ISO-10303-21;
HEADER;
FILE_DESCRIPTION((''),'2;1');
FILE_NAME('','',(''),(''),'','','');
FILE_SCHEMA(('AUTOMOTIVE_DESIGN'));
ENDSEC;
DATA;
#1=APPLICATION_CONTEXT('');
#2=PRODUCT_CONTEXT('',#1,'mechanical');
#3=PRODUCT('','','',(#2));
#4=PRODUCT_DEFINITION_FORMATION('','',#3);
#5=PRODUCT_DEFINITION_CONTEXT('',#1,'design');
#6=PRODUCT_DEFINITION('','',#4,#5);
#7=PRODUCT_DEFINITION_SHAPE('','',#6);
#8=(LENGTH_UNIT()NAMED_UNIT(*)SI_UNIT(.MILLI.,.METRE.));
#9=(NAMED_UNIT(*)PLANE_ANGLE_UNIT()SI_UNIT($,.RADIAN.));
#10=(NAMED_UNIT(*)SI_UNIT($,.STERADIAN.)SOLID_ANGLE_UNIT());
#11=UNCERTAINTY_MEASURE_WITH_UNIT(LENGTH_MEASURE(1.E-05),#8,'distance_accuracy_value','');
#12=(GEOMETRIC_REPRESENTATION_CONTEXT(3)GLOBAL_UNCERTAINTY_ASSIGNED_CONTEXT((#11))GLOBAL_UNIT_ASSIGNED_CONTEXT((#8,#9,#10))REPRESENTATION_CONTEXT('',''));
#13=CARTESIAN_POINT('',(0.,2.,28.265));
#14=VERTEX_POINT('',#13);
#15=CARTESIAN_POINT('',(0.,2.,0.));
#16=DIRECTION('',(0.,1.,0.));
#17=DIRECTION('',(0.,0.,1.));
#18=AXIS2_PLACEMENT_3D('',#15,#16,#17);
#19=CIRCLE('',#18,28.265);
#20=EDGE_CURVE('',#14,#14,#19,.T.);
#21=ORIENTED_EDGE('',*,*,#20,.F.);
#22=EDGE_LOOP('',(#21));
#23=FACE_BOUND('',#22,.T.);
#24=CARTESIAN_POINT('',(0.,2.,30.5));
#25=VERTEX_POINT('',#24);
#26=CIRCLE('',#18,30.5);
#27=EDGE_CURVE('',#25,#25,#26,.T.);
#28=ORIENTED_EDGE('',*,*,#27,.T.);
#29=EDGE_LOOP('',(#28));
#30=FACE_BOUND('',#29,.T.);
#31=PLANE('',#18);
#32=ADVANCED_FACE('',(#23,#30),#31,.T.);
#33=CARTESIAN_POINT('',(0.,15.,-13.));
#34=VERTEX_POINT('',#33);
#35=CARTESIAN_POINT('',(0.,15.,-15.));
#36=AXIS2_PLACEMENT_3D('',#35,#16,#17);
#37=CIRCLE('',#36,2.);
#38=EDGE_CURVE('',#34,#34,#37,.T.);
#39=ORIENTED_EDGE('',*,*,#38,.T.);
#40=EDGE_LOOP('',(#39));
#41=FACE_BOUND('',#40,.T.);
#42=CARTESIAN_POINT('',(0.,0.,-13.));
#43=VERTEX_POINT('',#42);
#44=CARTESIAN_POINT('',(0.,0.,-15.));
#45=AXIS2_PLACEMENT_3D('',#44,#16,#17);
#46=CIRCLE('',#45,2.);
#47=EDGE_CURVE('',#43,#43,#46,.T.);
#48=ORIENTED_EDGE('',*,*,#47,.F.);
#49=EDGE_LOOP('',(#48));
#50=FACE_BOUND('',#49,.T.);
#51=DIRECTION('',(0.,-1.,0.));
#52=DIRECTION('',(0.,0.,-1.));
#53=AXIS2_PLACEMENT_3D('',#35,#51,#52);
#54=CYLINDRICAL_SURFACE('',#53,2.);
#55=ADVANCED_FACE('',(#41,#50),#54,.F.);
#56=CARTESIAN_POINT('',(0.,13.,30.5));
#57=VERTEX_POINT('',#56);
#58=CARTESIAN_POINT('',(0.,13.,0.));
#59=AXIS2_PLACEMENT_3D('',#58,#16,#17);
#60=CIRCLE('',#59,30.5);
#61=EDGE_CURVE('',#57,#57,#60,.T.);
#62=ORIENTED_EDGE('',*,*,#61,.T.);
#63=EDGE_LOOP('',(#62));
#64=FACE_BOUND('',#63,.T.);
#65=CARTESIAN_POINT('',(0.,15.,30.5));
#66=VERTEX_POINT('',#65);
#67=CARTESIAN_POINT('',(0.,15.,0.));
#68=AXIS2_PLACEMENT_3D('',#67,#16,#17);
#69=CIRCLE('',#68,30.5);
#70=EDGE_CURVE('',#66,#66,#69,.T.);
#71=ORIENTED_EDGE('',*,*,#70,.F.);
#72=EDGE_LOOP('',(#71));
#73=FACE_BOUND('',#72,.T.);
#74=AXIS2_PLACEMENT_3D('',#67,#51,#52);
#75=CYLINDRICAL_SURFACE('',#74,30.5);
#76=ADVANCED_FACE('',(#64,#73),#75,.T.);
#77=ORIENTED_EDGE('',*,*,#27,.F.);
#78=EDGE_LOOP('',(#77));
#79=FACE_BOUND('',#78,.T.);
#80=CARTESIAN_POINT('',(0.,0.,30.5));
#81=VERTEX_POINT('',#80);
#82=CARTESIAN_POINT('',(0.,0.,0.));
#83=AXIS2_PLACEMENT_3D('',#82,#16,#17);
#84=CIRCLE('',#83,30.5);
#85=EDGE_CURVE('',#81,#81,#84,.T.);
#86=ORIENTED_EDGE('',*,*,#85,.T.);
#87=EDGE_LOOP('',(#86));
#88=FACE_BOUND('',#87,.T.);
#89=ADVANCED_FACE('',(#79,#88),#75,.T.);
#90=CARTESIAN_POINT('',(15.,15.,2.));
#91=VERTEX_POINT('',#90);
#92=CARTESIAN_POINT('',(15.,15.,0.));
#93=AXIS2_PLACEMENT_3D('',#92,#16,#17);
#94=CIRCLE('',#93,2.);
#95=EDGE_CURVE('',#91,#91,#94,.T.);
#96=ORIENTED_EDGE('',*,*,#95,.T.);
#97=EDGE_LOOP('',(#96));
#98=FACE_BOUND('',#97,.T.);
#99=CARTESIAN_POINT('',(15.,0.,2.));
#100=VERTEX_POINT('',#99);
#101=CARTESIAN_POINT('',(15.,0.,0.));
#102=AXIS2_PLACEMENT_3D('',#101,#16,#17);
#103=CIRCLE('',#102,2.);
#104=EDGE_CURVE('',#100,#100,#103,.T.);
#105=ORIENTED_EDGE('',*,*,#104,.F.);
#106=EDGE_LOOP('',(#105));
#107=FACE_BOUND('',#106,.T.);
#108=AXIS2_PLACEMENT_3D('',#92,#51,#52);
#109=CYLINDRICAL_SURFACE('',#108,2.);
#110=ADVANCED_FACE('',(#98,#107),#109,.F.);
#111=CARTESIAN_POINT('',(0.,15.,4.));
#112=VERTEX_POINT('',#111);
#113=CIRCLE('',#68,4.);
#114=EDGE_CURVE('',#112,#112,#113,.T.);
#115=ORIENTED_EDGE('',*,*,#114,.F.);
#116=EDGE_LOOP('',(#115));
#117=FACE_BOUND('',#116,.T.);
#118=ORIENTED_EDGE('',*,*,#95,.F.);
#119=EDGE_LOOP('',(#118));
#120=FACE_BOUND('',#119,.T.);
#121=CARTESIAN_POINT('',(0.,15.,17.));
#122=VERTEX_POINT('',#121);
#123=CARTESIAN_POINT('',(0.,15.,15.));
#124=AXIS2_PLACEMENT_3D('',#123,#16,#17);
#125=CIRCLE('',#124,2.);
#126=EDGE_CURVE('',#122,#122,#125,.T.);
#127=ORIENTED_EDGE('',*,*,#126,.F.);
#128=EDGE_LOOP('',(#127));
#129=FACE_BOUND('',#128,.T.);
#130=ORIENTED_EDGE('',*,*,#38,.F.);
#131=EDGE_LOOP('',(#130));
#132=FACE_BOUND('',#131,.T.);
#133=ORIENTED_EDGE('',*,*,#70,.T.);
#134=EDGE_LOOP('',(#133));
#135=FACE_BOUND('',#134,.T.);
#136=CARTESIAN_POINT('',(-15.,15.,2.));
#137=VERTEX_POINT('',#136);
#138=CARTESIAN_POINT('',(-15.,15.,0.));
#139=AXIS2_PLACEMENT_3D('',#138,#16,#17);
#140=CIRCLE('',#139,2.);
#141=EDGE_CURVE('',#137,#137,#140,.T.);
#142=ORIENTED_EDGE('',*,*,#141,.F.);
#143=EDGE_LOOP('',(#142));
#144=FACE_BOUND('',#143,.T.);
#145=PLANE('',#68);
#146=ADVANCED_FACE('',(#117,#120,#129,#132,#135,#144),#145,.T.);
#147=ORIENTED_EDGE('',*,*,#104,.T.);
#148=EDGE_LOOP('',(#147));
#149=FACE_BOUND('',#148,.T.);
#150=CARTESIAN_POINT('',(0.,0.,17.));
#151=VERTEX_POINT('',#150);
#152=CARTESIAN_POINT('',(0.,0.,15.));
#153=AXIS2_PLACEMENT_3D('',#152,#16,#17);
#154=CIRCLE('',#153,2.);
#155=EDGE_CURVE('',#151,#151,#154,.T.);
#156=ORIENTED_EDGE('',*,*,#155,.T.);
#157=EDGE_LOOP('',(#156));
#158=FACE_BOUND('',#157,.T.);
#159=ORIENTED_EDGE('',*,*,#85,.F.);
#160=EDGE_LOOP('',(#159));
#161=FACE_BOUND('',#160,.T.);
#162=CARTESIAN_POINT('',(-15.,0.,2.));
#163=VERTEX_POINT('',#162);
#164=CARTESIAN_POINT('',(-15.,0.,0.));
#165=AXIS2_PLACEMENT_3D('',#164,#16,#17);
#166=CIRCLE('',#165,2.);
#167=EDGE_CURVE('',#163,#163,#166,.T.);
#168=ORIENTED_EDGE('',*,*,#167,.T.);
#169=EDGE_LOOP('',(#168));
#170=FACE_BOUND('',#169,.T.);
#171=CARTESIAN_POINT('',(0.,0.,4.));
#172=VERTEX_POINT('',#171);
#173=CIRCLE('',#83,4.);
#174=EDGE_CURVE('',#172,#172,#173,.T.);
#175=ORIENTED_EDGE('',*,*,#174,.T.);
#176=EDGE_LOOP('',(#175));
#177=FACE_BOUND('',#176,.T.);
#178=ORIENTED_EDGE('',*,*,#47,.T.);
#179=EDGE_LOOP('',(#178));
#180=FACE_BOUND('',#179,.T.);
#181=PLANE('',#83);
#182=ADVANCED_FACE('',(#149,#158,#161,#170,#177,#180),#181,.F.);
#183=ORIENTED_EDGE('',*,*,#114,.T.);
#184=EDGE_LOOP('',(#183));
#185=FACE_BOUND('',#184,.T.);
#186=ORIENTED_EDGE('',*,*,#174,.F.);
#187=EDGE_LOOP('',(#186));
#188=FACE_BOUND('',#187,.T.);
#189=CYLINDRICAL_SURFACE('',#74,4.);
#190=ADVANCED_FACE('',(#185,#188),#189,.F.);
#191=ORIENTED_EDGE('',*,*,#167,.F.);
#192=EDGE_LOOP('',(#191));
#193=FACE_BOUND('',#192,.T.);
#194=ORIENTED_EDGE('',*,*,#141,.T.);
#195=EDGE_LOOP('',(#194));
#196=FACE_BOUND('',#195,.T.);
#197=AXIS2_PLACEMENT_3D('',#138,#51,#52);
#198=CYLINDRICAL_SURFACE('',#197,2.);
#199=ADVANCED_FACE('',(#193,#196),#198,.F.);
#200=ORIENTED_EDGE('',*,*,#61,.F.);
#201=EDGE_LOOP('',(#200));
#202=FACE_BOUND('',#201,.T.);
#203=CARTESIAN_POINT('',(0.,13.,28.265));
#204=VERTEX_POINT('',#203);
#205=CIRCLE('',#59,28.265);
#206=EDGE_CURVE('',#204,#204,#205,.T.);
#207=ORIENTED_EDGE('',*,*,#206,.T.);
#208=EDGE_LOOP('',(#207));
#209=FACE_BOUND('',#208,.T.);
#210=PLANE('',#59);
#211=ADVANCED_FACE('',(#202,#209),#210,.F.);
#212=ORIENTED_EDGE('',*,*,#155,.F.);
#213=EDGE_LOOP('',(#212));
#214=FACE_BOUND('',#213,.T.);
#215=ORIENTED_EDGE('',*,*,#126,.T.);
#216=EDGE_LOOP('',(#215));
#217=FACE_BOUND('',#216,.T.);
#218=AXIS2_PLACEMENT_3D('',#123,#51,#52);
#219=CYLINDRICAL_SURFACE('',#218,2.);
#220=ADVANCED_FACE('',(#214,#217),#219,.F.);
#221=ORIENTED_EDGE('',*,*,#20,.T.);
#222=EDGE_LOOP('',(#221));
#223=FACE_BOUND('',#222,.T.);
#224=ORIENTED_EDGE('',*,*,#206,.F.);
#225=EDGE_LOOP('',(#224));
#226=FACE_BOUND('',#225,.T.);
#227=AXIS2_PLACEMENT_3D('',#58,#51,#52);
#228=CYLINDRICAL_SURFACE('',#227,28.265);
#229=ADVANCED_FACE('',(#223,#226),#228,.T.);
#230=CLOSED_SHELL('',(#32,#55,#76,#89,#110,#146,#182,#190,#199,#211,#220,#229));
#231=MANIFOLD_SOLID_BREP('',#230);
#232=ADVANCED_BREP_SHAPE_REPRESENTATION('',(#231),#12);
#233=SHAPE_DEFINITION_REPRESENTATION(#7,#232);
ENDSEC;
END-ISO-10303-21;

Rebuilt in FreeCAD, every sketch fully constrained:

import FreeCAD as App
import Part
import Sketcher
from FreeCAD import Vector
Q = App.Units.Quantity

doc = App.newDocument("Part")
body = doc.addObject("PartDesign::Body", "Body")

sketch1 = body.newObject("Sketcher::SketchObject", "Sketch")
sketch1.AttachmentSupport = (doc.getObject("XZ_Plane"), [""])
sketch1.MapMode = "FlatFace"
sketch1.addGeometry(Part.Circle(Vector(0, 0, 0), Vector(0, 0, 1), 30.5), False)
sketch1.addGeometry(Part.Circle(Vector(0, -15, 0), Vector(0, 0, 1), 2), False)
sketch1.addGeometry(Part.Circle(Vector(-15, 0, 0), Vector(0, 0, 1), 2), False)
sketch1.addGeometry(Part.Circle(Vector(0, 0, 0), Vector(0, 0, 1), 4), False)
sketch1.addGeometry(Part.Circle(Vector(0, 15, 0), Vector(0, 0, 1), 2), False)
sketch1.addGeometry(Part.Circle(Vector(15, 0, 0), Vector(0, 0, 1), 2), False)
sketch1.addConstraint(Sketcher.Constraint("Coincident", 0, 3, -1, 1))
sketch1.addConstraint(Sketcher.Constraint("Coincident", 3, 3, -1, 1))
sketch1.addConstraint(Sketcher.Constraint("Equal", 1, 2))
sketch1.addConstraint(Sketcher.Constraint("Equal", 2, 4))
sketch1.addConstraint(Sketcher.Constraint("Equal", 4, 5))
sketch1.addConstraint(Sketcher.Constraint("Symmetric", 1, 3, 4, 3, -1, 1))
sketch1.addConstraint(Sketcher.Constraint("Symmetric", 2, 3, 5, 3, -1, 1))
sketch1.addConstraint(Sketcher.Constraint("PointOnObject", 1, 3, -2))
sketch1.addConstraint(Sketcher.Constraint("PointOnObject", 2, 3, -1))
sketch1.addConstraint(Sketcher.Constraint("Diameter", 0, Q("61 mm")))
sketch1.addConstraint(Sketcher.Constraint("Diameter", 1, Q("4 mm")))
sketch1.addConstraint(Sketcher.Constraint("Diameter", 3, Q("8 mm")))
sketch1.addConstraint(Sketcher.Constraint("DistanceY", 1, 3, -1, 1, Q("15 mm")))
sketch1.addConstraint(Sketcher.Constraint("DistanceX", 2, 3, -1, 1, Q("15 mm")))
pad1 = body.newObject("PartDesign::Pad", "Pad")
pad1.Profile = sketch1
pad1.Length = 15
pad1.Reversed = True

sketch2 = body.newObject("Sketcher::SketchObject", "Sketch001")
sketch2.AttachmentSupport = (doc.getObject("XZ_Plane"), [""])
sketch2.MapMode = "FlatFace"
sketch2.AttachmentOffset = App.Placement(Vector(0, 0, -2), App.Rotation())
sketch2.addGeometry(Part.Circle(Vector(0, 0, 0), Vector(0, 0, 1), 30.5), False)
sketch2.addGeometry(Part.Circle(Vector(0, 0, 0), Vector(0, 0, 1), 28.265), False)
sketch2.addConstraint(Sketcher.Constraint("Coincident", 0, 3, -1, 1))
sketch2.addConstraint(Sketcher.Constraint("Coincident", 1, 3, -1, 1))
sketch2.addConstraint(Sketcher.Constraint("Diameter", 0, Q("61 mm")))
sketch2.addConstraint(Sketcher.Constraint("Diameter", 1, Q("56.53 mm")))
pocket1 = body.newObject("PartDesign::Pocket", "Pocket")
pocket1.Profile = sketch2
pocket1.Length = 11

doc.recompute()
